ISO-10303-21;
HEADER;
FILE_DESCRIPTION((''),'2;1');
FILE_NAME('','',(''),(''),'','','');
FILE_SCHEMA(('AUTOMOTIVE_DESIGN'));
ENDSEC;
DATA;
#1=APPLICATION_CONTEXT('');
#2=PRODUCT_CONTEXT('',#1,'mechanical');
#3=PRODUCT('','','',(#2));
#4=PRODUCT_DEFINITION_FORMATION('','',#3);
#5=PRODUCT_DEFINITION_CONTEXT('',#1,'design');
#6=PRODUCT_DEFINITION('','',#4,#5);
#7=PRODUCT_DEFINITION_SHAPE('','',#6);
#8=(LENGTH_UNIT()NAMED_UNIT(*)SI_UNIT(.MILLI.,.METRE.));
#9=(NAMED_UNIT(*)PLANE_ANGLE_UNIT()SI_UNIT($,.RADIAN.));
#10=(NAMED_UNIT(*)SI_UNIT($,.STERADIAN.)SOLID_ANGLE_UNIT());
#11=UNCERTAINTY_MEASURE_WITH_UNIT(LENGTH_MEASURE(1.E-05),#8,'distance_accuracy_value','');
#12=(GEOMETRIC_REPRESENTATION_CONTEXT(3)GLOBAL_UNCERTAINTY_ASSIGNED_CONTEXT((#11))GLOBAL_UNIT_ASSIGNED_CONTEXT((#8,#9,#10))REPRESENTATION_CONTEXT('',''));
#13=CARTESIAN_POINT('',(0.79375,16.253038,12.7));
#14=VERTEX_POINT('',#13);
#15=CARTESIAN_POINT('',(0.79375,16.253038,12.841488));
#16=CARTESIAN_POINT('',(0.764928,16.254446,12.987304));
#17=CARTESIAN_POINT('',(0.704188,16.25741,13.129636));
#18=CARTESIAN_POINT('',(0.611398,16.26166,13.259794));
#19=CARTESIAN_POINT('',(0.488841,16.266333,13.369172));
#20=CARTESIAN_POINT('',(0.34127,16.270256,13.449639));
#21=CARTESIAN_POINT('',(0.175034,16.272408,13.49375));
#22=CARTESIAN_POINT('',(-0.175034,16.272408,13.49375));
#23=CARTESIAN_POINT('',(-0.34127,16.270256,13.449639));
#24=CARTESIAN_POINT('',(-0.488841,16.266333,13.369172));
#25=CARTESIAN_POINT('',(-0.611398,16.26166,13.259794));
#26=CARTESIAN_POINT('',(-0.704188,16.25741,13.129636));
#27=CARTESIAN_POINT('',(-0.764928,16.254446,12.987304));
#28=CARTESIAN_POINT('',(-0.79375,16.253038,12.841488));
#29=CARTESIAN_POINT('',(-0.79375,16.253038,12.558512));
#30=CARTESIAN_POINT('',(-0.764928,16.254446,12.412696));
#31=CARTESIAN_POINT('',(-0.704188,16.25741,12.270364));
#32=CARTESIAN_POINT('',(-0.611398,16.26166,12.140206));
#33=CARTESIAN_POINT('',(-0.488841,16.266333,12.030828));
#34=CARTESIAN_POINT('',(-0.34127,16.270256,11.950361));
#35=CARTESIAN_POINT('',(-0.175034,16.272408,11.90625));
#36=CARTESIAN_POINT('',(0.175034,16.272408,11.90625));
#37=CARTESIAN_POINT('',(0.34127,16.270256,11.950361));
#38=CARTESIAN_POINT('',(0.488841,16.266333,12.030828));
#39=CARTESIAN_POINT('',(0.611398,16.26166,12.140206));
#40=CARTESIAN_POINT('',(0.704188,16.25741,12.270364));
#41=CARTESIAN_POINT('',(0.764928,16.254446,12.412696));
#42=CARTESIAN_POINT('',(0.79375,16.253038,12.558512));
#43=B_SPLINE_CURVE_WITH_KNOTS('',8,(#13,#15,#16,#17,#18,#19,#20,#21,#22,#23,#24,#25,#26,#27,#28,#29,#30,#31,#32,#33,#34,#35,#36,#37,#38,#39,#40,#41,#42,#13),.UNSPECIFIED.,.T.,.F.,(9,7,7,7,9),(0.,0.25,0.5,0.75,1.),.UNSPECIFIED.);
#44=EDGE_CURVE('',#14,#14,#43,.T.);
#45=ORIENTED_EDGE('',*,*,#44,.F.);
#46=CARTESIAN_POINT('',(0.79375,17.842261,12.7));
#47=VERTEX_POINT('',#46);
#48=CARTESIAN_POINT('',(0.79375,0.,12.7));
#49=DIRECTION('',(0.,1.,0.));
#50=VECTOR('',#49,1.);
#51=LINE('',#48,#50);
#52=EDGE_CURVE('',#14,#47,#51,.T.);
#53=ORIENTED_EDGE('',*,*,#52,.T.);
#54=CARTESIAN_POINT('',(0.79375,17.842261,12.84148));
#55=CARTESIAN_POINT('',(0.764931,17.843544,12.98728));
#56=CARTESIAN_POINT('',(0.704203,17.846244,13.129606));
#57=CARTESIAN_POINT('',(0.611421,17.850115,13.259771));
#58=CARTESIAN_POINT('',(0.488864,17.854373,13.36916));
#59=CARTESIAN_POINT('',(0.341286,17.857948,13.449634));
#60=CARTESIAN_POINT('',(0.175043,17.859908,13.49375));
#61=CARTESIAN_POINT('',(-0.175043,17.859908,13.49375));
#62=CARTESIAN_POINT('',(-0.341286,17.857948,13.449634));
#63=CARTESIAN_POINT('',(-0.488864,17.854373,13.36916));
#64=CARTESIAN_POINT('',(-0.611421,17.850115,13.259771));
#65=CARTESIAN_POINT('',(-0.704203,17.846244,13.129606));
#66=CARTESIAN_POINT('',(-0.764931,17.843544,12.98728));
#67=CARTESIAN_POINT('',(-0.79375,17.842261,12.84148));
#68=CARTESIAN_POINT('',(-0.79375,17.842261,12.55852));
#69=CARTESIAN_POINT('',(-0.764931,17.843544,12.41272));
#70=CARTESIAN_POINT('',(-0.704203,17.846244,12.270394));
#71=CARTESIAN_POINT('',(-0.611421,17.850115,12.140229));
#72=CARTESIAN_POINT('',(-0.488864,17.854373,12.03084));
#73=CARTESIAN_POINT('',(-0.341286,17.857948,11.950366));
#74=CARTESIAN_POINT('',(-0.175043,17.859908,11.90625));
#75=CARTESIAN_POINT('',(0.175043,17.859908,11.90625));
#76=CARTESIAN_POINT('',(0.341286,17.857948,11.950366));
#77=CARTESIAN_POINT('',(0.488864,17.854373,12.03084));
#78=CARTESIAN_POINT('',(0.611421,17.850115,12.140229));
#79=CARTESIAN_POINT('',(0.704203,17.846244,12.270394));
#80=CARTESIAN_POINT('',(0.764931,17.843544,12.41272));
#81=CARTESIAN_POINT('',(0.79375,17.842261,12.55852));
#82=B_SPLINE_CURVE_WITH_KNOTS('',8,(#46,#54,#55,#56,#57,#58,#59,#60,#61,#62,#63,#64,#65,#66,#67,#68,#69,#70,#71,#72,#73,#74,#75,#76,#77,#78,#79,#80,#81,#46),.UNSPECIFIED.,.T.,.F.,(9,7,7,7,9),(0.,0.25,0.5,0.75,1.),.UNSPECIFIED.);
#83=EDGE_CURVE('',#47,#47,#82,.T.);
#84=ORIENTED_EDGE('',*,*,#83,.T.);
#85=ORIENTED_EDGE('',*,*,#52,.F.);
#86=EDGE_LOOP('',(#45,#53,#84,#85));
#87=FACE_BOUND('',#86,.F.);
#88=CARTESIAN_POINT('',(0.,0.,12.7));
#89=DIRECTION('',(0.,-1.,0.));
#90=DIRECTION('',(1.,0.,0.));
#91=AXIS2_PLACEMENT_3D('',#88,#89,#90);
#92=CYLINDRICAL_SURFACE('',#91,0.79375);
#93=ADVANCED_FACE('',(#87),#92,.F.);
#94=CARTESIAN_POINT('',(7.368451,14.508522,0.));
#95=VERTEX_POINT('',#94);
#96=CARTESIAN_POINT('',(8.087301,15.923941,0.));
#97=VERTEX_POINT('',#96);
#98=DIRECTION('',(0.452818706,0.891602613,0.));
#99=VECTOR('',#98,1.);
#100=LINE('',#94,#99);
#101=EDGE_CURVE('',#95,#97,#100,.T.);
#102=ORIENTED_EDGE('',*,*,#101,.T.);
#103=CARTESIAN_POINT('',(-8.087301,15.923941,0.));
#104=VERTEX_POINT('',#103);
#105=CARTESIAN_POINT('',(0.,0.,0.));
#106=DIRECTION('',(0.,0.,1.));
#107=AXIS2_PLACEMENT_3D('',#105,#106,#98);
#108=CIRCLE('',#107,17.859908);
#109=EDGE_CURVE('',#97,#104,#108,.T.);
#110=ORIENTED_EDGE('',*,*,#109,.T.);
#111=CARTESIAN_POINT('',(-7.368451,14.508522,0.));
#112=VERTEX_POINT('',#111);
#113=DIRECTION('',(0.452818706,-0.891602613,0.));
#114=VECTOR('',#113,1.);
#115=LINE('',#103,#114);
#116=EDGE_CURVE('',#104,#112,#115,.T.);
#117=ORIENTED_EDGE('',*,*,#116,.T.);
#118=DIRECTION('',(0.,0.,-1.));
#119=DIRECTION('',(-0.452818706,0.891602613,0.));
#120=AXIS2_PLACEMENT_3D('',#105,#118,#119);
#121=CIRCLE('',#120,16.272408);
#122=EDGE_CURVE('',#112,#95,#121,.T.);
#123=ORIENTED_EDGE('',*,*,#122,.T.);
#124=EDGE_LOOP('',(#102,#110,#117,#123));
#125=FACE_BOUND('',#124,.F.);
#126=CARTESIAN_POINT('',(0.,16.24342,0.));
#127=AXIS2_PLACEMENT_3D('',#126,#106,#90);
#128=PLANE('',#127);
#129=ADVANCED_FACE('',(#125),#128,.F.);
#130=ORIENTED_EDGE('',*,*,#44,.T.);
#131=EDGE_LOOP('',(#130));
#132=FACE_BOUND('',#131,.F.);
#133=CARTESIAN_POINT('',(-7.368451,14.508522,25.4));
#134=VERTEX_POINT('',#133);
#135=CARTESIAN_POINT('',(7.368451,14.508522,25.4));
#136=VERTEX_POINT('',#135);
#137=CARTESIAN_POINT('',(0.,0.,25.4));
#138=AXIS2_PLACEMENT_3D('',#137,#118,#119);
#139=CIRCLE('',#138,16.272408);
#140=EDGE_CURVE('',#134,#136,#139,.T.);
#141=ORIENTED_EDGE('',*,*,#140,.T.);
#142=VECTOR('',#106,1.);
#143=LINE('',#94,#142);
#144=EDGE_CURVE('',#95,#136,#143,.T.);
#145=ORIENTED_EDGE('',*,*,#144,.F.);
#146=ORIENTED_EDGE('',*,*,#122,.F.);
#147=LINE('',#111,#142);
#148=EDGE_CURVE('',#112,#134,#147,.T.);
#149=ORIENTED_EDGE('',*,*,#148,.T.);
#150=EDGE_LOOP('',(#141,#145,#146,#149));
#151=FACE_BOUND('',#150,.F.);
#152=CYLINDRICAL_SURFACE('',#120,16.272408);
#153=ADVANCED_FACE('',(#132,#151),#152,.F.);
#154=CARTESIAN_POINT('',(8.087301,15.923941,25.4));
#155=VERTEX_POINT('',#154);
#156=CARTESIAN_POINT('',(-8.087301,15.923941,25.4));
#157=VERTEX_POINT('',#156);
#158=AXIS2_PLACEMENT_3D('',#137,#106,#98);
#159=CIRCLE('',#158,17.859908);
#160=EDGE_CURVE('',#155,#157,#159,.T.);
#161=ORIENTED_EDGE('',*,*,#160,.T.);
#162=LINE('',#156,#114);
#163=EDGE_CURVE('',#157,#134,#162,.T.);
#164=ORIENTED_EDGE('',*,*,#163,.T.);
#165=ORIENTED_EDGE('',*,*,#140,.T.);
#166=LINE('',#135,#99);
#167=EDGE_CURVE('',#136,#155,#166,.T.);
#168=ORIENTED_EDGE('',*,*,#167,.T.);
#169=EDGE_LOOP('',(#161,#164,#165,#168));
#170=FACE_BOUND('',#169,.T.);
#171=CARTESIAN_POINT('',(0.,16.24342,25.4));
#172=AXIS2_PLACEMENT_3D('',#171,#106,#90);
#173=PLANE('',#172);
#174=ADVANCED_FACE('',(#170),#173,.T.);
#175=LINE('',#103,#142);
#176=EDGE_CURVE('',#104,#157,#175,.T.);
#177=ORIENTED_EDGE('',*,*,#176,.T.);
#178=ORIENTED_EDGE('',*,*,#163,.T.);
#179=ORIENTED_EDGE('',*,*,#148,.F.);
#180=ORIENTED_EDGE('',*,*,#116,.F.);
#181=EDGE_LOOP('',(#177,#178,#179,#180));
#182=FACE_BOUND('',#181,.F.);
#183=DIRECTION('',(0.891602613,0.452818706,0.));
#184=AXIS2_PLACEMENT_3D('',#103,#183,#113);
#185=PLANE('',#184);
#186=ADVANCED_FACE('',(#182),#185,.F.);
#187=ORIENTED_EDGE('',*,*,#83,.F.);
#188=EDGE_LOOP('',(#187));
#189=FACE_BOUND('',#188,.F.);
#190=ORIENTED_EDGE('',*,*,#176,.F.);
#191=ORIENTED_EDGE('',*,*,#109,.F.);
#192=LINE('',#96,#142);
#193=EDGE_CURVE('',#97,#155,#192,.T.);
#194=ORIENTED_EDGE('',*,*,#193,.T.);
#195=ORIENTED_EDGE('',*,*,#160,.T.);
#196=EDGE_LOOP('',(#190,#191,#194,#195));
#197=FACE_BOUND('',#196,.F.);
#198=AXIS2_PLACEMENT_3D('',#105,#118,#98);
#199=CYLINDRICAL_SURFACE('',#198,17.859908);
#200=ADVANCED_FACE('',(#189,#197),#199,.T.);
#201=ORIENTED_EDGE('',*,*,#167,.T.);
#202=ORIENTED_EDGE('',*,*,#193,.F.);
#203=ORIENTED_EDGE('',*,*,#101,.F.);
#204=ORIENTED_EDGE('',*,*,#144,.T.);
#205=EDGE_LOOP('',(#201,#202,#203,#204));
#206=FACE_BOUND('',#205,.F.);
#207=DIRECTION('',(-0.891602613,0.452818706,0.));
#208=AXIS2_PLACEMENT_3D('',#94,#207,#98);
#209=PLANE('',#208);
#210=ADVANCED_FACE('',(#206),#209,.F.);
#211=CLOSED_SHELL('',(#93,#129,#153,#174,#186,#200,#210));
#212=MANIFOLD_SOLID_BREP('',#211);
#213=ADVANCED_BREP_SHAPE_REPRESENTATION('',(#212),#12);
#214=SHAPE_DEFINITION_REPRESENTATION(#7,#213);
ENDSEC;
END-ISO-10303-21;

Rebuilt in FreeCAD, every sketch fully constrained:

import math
import FreeCAD as App
import Part
import Sketcher
from FreeCAD import Vector
Q = App.Units.Quantity

doc = App.newDocument("Part")
body = doc.addObject("PartDesign::Body", "Body")

# Sketch on XY plane
sketch1 = doc.addObject("Sketcher::SketchObject", "Sketch")
body.addObject(sketch1)
sketch1.AttachmentSupport = (doc.XY_Plane, [""])
sketch1.MapMode = "FlatFace"
sketch1.addGeometry(Part.ArcOfCircle(Part.Circle(Vector(0, 0, 0), Vector(0, 0, 1), 16.3), math.radians(63), math.radians(117)), False)
sketch1.addGeometry(Part.LineSegment(Vector(7.4, 14.5, 0), Vector(8.1, 15.9, 0)), False)
sketch1.addGeometry(Part.ArcOfCircle(Part.Circle(Vector(0, 0, 0), Vector(0, 0, 1), 17.9), math.radians(63), math.radians(117)), False)
sketch1.addGeometry(Part.LineSegment(Vector(-8.1, 15.9, 0), Vector(-7.4, 14.5, 0)), False)
sketch1.addConstraint(Sketcher.Constraint("Coincident", 0, 1, 1, 1))
sketch1.addConstraint(Sketcher.Constraint("Coincident", 1, 2, 2, 1))
sketch1.addConstraint(Sketcher.Constraint("Coincident", 2, 2, 3, 1))
sketch1.addConstraint(Sketcher.Constraint("Coincident", 3, 2, 0, 2))
sketch1.addConstraint(Sketcher.Constraint("Coincident", 0, 3, -1, 1))
sketch1.addConstraint(Sketcher.Constraint("Coincident", 2, 3, -1, 1))
sketch1.addConstraint(Sketcher.Constraint("Horizontal", 1, 2, 2, 2))
sketch1.addConstraint(Sketcher.Constraint("Horizontal", 0, 1, 3, 2))
sketch1.addConstraint(Sketcher.Constraint("Distance", 1, Q("0.0625 in")))
sketch1.addConstraint(Sketcher.Constraint("Radius", 0, 16.272408))
sketch1.addConstraint(Sketcher.Constraint("DistanceX", -1, 1, 1, 2, 8.087301))
sketch1.addConstraint(Sketcher.Constraint("DistanceX", 3, 2, 0, 1, 14.736902))
pad1 = doc.addObject("PartDesign::Pad", "Pad")
body.addObject(pad1)
pad1.Profile = sketch1
pad1.Length = Q("1 in")

# Sketch on XZ plane
sketch2 = doc.addObject("Sketcher::SketchObject", "Sketch001")
body.addObject(sketch2)
sketch2.AttachmentSupport = (doc.XZ_Plane, [""])
sketch2.MapMode = "FlatFace"
sketch2.addGeometry(Part.Circle(Vector(0, 12.7, 0), Vector(0, 0, 1), 0.8), False)
sketch2.addConstraint(Sketcher.Constraint("PointOnObject", 0, 3, -2))
sketch2.addConstraint(Sketcher.Constraint("Diameter", 0, Q("0.0625 in")))
sketch2.addConstraint(Sketcher.Constraint("DistanceY", -1, 1, 0, 3, Q("0.5 in")))
pocket1 = doc.addObject("PartDesign::Pocket", "Pocket")
body.addObject(pocket1)
pocket1.Profile = sketch2
pocket1.Length = 18.859908

doc.recompute()
